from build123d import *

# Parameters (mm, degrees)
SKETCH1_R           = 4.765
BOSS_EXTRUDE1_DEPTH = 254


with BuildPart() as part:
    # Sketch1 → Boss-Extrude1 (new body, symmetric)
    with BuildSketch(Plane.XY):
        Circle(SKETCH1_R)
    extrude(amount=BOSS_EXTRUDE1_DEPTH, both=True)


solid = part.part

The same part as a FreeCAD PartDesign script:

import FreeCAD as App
import Part
import Sketcher

V = App.Vector
Q = App.Units.Quantity

doc = App.newDocument("Part")
body = doc.addObject("PartDesign::Body", "Body")

# Sketch on XY plane
sketch1 = doc.addObject("Sketcher::SketchObject", "Sketch")
body.addObject(sketch1)
sketch1.AttachmentSupport = (doc.XY_Plane, [""])
sketch1.MapMode = "FlatFace"
sketch1.addGeometry(Part.Circle(V(0, 0, 0), V(0, 0, 1), 4.8), False)
sketch1.addConstraint(Sketcher.Constraint("Coincident", 0, 3, -1, 1))
sketch1.addConstraint(Sketcher.Constraint("Diameter", 0, Q("9.53 mm")))
pad1 = doc.addObject("PartDesign::Pad", "Pad")
body.addObject(pad1)
pad1.Profile = sketch1
pad1.Length = Q("20 in")
pad1.Midplane = True

doc.recompute()
